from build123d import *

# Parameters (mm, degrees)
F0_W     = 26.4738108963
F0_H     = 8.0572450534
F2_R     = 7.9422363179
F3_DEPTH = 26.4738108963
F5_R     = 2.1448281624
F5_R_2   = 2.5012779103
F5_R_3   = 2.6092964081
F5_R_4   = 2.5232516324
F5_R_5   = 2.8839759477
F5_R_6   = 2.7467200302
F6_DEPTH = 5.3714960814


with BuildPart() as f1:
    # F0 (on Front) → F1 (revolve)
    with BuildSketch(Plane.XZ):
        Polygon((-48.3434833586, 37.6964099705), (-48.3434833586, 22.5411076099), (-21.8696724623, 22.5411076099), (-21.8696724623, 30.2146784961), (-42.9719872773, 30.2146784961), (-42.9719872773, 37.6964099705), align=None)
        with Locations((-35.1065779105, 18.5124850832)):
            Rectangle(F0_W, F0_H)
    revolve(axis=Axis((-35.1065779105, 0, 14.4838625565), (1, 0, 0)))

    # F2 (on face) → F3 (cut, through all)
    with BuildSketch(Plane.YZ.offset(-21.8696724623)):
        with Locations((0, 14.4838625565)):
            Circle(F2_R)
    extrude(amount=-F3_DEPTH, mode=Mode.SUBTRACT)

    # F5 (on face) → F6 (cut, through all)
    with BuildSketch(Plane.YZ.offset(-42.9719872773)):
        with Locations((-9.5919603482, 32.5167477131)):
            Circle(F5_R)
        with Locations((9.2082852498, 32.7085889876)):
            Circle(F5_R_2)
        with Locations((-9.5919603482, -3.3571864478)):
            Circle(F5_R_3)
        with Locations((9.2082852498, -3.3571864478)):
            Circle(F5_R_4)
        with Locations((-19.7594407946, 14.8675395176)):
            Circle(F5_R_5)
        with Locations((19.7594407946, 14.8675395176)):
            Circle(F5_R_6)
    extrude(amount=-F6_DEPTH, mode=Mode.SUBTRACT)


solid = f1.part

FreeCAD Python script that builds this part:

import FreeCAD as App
import Part
import Sketcher

V = App.Vector

doc = App.newDocument("Part")
body = doc.addObject("PartDesign::Body", "Body")

# Sketch on XZ plane
sketch1 = body.newObject("Sketcher::SketchObject", "Sketch")
sketch1.AttachmentSupport = (doc.getObject("XZ_Plane"), [""])
sketch1.MapMode = "FlatFace"
sketch1.addGeometry([
    Part.LineSegment(V(-48, 38, 0), V(-48, 14, 0)),  # 0
    Part.LineSegment(V(-48, 14, 0), V(-22, 14, 0)),  # 1
    Part.LineSegment(V(-22, 14, 0), V(-22, 23, 0)),  # 2
    Part.LineSegment(V(-22, 23, 0), V(-22, 30, 0)),  # 3
    Part.LineSegment(V(-22, 30, 0), V(-43, 30, 0)),  # 4
    Part.LineSegment(V(-43, 30, 0), V(-43, 38, 0)),  # 5
    Part.LineSegment(V(-43, 38, 0), V(-48, 38, 0)),  # 6
], False)
sketch1.addGeometry(Part.LineSegment(V(-48, 14, 0), V(-22, 14, 0)), True)  # axis
sketch1.addConstraint([
    Sketcher.Constraint("Coincident", 0, 2, 1, 1),
    Sketcher.Constraint("Coincident", 1, 2, 2, 1),
    Sketcher.Constraint("Coincident", 2, 2, 3, 1),
    Sketcher.Constraint("Coincident", 3, 2, 4, 1),
    Sketcher.Constraint("Coincident", 4, 2, 5, 1),
    Sketcher.Constraint("Coincident", 5, 2, 6, 1),
    Sketcher.Constraint("Coincident", 6, 2, 0, 1),
    Sketcher.Constraint("Vertical", 0),
    Sketcher.Constraint("Horizontal", 1),
    Sketcher.Constraint("Vertical", 2),
    Sketcher.Constraint("Vertical", 3),
    Sketcher.Constraint("Horizontal", 4),
    Sketcher.Constraint("Vertical", 5),
    Sketcher.Constraint("Horizontal", 6),
    Sketcher.Constraint("Horizontal", 7),
    Sketcher.Constraint("Coincident", 7, 1, 0, 2),
    Sketcher.Constraint("Vertical", 3, 2, 7, 2),
    Sketcher.Constraint("DistanceX", 1, 1, 1, 2, 26.473811),
    Sketcher.Constraint("DistanceY", 3, 1, 3, 2, 7.673571),
    Sketcher.Constraint("DistanceY", 5, 1, 5, 2, 7.481731),
    Sketcher.Constraint("DistanceX", 4, 2, 4, 1, 21.102315),
    Sketcher.Constraint("DistanceY", 0, 2, 0, 1, 23.212547),
    Sketcher.Constraint("DistanceY", -1, 1, 3, 2, 30.214678),
    Sketcher.Constraint("DistanceX", 0, 2, -1, 1, 48.343483),
])
revolution = body.newObject("PartDesign::Revolution", "Revolution")
revolution.Profile = sketch1
revolution.ReferenceAxis = (sketch1, ["Axis0"])
revolution.Angle = 360

# Sketch on YZ plane
sketch2 = body.newObject("Sketcher::SketchObject", "Sketch001")
sketch2.AttachmentSupport = (doc.getObject("YZ_Plane"), [""])
sketch2.MapMode = "FlatFace"
sketch2.AttachmentOffset = App.Placement(V(0, 0, -21.869672), App.Rotation())
sketch2.addGeometry(Part.Circle(V(0, 14, 0), V(0, 0, 1), 8), False)
sketch2.addConstraint([
    Sketcher.Constraint("PointOnObject", 0, 3, -2),
    Sketcher.Constraint("Diameter", 0, 15.884473),
    Sketcher.Constraint("DistanceY", -1, 1, 0, 3, 14.483863),
])
pocket1 = body.newObject("PartDesign::Pocket", "Pocket")
pocket1.Profile = sketch2
pocket1.Type = "ThroughAll"

# Sketch on YZ plane
sketch3 = body.newObject("Sketcher::SketchObject", "Sketch002")
sketch3.AttachmentSupport = (doc.getObject("YZ_Plane"), [""])
sketch3.MapMode = "FlatFace"
sketch3.AttachmentOffset = App.Placement(V(0, 0, -42.971987), App.Rotation())
sketch3.addGeometry([
    Part.Circle(V(-9.6, 32.5, 0), V(0, 0, 1), 2.1),  # 0
    Part.Circle(V(9.2, 32.7, 0), V(0, 0, 1), 2.5),  # 1
    Part.Circle(V(-9.6, -3.4, 0), V(0, 0, 1), 2.6),  # 2
    Part.Circle(V(9.2, -3.4, 0), V(0, 0, 1), 2.5),  # 3
    Part.Circle(V(-19.8, 14.9, 0), V(0, 0, 1), 2.9),  # 4
    Part.Circle(V(19.8, 14.9, 0), V(0, 0, 1), 2.7),  # 5
], False)
sketch3.addConstraint([
    Sketcher.Constraint("Symmetric", 4, 3, 5, 3, -2),
    Sketcher.Constraint("Horizontal", 2, 3, 3, 3),
    Sketcher.Constraint("Vertical", 0, 3, 2, 3),
    Sketcher.Constraint("Vertical", 1, 3, 3, 3),
    Sketcher.Constraint("Diameter", 4, 5.767952),
    Sketcher.Constraint("Diameter", 5, 5.49344),
    Sketcher.Constraint("Diameter", 0, 4.289656),
    Sketcher.Constraint("Diameter", 1, 5.002556),
    Sketcher.Constraint("Diameter", 2, 5.218593),
    Sketcher.Constraint("Diameter", 3, 5.046503),
    Sketcher.Constraint("DistanceX", 0, 3, 5, 3, 29.351401),
    Sketcher.Constraint("DistanceX", 0, 3, -1, 1, 9.59196),
    Sketcher.Constraint("DistanceY", -1, 1, 1, 3, 32.708589),
    Sketcher.Constraint("DistanceY", -1, 1, 4, 3, 14.86754),
    Sketcher.Constraint("DistanceY", 0, 3, 1, 3, 0.191841),
    Sketcher.Constraint("DistanceX", -1, 1, 1, 3, 9.208285),
    Sketcher.Constraint("DistanceY", 2, 3, -1, 1, 3.357186),
])
pocket2 = body.newObject("PartDesign::Pocket", "Pocket001")
pocket2.Profile = sketch3
pocket2.Type = "ThroughAll"

doc.recompute()
